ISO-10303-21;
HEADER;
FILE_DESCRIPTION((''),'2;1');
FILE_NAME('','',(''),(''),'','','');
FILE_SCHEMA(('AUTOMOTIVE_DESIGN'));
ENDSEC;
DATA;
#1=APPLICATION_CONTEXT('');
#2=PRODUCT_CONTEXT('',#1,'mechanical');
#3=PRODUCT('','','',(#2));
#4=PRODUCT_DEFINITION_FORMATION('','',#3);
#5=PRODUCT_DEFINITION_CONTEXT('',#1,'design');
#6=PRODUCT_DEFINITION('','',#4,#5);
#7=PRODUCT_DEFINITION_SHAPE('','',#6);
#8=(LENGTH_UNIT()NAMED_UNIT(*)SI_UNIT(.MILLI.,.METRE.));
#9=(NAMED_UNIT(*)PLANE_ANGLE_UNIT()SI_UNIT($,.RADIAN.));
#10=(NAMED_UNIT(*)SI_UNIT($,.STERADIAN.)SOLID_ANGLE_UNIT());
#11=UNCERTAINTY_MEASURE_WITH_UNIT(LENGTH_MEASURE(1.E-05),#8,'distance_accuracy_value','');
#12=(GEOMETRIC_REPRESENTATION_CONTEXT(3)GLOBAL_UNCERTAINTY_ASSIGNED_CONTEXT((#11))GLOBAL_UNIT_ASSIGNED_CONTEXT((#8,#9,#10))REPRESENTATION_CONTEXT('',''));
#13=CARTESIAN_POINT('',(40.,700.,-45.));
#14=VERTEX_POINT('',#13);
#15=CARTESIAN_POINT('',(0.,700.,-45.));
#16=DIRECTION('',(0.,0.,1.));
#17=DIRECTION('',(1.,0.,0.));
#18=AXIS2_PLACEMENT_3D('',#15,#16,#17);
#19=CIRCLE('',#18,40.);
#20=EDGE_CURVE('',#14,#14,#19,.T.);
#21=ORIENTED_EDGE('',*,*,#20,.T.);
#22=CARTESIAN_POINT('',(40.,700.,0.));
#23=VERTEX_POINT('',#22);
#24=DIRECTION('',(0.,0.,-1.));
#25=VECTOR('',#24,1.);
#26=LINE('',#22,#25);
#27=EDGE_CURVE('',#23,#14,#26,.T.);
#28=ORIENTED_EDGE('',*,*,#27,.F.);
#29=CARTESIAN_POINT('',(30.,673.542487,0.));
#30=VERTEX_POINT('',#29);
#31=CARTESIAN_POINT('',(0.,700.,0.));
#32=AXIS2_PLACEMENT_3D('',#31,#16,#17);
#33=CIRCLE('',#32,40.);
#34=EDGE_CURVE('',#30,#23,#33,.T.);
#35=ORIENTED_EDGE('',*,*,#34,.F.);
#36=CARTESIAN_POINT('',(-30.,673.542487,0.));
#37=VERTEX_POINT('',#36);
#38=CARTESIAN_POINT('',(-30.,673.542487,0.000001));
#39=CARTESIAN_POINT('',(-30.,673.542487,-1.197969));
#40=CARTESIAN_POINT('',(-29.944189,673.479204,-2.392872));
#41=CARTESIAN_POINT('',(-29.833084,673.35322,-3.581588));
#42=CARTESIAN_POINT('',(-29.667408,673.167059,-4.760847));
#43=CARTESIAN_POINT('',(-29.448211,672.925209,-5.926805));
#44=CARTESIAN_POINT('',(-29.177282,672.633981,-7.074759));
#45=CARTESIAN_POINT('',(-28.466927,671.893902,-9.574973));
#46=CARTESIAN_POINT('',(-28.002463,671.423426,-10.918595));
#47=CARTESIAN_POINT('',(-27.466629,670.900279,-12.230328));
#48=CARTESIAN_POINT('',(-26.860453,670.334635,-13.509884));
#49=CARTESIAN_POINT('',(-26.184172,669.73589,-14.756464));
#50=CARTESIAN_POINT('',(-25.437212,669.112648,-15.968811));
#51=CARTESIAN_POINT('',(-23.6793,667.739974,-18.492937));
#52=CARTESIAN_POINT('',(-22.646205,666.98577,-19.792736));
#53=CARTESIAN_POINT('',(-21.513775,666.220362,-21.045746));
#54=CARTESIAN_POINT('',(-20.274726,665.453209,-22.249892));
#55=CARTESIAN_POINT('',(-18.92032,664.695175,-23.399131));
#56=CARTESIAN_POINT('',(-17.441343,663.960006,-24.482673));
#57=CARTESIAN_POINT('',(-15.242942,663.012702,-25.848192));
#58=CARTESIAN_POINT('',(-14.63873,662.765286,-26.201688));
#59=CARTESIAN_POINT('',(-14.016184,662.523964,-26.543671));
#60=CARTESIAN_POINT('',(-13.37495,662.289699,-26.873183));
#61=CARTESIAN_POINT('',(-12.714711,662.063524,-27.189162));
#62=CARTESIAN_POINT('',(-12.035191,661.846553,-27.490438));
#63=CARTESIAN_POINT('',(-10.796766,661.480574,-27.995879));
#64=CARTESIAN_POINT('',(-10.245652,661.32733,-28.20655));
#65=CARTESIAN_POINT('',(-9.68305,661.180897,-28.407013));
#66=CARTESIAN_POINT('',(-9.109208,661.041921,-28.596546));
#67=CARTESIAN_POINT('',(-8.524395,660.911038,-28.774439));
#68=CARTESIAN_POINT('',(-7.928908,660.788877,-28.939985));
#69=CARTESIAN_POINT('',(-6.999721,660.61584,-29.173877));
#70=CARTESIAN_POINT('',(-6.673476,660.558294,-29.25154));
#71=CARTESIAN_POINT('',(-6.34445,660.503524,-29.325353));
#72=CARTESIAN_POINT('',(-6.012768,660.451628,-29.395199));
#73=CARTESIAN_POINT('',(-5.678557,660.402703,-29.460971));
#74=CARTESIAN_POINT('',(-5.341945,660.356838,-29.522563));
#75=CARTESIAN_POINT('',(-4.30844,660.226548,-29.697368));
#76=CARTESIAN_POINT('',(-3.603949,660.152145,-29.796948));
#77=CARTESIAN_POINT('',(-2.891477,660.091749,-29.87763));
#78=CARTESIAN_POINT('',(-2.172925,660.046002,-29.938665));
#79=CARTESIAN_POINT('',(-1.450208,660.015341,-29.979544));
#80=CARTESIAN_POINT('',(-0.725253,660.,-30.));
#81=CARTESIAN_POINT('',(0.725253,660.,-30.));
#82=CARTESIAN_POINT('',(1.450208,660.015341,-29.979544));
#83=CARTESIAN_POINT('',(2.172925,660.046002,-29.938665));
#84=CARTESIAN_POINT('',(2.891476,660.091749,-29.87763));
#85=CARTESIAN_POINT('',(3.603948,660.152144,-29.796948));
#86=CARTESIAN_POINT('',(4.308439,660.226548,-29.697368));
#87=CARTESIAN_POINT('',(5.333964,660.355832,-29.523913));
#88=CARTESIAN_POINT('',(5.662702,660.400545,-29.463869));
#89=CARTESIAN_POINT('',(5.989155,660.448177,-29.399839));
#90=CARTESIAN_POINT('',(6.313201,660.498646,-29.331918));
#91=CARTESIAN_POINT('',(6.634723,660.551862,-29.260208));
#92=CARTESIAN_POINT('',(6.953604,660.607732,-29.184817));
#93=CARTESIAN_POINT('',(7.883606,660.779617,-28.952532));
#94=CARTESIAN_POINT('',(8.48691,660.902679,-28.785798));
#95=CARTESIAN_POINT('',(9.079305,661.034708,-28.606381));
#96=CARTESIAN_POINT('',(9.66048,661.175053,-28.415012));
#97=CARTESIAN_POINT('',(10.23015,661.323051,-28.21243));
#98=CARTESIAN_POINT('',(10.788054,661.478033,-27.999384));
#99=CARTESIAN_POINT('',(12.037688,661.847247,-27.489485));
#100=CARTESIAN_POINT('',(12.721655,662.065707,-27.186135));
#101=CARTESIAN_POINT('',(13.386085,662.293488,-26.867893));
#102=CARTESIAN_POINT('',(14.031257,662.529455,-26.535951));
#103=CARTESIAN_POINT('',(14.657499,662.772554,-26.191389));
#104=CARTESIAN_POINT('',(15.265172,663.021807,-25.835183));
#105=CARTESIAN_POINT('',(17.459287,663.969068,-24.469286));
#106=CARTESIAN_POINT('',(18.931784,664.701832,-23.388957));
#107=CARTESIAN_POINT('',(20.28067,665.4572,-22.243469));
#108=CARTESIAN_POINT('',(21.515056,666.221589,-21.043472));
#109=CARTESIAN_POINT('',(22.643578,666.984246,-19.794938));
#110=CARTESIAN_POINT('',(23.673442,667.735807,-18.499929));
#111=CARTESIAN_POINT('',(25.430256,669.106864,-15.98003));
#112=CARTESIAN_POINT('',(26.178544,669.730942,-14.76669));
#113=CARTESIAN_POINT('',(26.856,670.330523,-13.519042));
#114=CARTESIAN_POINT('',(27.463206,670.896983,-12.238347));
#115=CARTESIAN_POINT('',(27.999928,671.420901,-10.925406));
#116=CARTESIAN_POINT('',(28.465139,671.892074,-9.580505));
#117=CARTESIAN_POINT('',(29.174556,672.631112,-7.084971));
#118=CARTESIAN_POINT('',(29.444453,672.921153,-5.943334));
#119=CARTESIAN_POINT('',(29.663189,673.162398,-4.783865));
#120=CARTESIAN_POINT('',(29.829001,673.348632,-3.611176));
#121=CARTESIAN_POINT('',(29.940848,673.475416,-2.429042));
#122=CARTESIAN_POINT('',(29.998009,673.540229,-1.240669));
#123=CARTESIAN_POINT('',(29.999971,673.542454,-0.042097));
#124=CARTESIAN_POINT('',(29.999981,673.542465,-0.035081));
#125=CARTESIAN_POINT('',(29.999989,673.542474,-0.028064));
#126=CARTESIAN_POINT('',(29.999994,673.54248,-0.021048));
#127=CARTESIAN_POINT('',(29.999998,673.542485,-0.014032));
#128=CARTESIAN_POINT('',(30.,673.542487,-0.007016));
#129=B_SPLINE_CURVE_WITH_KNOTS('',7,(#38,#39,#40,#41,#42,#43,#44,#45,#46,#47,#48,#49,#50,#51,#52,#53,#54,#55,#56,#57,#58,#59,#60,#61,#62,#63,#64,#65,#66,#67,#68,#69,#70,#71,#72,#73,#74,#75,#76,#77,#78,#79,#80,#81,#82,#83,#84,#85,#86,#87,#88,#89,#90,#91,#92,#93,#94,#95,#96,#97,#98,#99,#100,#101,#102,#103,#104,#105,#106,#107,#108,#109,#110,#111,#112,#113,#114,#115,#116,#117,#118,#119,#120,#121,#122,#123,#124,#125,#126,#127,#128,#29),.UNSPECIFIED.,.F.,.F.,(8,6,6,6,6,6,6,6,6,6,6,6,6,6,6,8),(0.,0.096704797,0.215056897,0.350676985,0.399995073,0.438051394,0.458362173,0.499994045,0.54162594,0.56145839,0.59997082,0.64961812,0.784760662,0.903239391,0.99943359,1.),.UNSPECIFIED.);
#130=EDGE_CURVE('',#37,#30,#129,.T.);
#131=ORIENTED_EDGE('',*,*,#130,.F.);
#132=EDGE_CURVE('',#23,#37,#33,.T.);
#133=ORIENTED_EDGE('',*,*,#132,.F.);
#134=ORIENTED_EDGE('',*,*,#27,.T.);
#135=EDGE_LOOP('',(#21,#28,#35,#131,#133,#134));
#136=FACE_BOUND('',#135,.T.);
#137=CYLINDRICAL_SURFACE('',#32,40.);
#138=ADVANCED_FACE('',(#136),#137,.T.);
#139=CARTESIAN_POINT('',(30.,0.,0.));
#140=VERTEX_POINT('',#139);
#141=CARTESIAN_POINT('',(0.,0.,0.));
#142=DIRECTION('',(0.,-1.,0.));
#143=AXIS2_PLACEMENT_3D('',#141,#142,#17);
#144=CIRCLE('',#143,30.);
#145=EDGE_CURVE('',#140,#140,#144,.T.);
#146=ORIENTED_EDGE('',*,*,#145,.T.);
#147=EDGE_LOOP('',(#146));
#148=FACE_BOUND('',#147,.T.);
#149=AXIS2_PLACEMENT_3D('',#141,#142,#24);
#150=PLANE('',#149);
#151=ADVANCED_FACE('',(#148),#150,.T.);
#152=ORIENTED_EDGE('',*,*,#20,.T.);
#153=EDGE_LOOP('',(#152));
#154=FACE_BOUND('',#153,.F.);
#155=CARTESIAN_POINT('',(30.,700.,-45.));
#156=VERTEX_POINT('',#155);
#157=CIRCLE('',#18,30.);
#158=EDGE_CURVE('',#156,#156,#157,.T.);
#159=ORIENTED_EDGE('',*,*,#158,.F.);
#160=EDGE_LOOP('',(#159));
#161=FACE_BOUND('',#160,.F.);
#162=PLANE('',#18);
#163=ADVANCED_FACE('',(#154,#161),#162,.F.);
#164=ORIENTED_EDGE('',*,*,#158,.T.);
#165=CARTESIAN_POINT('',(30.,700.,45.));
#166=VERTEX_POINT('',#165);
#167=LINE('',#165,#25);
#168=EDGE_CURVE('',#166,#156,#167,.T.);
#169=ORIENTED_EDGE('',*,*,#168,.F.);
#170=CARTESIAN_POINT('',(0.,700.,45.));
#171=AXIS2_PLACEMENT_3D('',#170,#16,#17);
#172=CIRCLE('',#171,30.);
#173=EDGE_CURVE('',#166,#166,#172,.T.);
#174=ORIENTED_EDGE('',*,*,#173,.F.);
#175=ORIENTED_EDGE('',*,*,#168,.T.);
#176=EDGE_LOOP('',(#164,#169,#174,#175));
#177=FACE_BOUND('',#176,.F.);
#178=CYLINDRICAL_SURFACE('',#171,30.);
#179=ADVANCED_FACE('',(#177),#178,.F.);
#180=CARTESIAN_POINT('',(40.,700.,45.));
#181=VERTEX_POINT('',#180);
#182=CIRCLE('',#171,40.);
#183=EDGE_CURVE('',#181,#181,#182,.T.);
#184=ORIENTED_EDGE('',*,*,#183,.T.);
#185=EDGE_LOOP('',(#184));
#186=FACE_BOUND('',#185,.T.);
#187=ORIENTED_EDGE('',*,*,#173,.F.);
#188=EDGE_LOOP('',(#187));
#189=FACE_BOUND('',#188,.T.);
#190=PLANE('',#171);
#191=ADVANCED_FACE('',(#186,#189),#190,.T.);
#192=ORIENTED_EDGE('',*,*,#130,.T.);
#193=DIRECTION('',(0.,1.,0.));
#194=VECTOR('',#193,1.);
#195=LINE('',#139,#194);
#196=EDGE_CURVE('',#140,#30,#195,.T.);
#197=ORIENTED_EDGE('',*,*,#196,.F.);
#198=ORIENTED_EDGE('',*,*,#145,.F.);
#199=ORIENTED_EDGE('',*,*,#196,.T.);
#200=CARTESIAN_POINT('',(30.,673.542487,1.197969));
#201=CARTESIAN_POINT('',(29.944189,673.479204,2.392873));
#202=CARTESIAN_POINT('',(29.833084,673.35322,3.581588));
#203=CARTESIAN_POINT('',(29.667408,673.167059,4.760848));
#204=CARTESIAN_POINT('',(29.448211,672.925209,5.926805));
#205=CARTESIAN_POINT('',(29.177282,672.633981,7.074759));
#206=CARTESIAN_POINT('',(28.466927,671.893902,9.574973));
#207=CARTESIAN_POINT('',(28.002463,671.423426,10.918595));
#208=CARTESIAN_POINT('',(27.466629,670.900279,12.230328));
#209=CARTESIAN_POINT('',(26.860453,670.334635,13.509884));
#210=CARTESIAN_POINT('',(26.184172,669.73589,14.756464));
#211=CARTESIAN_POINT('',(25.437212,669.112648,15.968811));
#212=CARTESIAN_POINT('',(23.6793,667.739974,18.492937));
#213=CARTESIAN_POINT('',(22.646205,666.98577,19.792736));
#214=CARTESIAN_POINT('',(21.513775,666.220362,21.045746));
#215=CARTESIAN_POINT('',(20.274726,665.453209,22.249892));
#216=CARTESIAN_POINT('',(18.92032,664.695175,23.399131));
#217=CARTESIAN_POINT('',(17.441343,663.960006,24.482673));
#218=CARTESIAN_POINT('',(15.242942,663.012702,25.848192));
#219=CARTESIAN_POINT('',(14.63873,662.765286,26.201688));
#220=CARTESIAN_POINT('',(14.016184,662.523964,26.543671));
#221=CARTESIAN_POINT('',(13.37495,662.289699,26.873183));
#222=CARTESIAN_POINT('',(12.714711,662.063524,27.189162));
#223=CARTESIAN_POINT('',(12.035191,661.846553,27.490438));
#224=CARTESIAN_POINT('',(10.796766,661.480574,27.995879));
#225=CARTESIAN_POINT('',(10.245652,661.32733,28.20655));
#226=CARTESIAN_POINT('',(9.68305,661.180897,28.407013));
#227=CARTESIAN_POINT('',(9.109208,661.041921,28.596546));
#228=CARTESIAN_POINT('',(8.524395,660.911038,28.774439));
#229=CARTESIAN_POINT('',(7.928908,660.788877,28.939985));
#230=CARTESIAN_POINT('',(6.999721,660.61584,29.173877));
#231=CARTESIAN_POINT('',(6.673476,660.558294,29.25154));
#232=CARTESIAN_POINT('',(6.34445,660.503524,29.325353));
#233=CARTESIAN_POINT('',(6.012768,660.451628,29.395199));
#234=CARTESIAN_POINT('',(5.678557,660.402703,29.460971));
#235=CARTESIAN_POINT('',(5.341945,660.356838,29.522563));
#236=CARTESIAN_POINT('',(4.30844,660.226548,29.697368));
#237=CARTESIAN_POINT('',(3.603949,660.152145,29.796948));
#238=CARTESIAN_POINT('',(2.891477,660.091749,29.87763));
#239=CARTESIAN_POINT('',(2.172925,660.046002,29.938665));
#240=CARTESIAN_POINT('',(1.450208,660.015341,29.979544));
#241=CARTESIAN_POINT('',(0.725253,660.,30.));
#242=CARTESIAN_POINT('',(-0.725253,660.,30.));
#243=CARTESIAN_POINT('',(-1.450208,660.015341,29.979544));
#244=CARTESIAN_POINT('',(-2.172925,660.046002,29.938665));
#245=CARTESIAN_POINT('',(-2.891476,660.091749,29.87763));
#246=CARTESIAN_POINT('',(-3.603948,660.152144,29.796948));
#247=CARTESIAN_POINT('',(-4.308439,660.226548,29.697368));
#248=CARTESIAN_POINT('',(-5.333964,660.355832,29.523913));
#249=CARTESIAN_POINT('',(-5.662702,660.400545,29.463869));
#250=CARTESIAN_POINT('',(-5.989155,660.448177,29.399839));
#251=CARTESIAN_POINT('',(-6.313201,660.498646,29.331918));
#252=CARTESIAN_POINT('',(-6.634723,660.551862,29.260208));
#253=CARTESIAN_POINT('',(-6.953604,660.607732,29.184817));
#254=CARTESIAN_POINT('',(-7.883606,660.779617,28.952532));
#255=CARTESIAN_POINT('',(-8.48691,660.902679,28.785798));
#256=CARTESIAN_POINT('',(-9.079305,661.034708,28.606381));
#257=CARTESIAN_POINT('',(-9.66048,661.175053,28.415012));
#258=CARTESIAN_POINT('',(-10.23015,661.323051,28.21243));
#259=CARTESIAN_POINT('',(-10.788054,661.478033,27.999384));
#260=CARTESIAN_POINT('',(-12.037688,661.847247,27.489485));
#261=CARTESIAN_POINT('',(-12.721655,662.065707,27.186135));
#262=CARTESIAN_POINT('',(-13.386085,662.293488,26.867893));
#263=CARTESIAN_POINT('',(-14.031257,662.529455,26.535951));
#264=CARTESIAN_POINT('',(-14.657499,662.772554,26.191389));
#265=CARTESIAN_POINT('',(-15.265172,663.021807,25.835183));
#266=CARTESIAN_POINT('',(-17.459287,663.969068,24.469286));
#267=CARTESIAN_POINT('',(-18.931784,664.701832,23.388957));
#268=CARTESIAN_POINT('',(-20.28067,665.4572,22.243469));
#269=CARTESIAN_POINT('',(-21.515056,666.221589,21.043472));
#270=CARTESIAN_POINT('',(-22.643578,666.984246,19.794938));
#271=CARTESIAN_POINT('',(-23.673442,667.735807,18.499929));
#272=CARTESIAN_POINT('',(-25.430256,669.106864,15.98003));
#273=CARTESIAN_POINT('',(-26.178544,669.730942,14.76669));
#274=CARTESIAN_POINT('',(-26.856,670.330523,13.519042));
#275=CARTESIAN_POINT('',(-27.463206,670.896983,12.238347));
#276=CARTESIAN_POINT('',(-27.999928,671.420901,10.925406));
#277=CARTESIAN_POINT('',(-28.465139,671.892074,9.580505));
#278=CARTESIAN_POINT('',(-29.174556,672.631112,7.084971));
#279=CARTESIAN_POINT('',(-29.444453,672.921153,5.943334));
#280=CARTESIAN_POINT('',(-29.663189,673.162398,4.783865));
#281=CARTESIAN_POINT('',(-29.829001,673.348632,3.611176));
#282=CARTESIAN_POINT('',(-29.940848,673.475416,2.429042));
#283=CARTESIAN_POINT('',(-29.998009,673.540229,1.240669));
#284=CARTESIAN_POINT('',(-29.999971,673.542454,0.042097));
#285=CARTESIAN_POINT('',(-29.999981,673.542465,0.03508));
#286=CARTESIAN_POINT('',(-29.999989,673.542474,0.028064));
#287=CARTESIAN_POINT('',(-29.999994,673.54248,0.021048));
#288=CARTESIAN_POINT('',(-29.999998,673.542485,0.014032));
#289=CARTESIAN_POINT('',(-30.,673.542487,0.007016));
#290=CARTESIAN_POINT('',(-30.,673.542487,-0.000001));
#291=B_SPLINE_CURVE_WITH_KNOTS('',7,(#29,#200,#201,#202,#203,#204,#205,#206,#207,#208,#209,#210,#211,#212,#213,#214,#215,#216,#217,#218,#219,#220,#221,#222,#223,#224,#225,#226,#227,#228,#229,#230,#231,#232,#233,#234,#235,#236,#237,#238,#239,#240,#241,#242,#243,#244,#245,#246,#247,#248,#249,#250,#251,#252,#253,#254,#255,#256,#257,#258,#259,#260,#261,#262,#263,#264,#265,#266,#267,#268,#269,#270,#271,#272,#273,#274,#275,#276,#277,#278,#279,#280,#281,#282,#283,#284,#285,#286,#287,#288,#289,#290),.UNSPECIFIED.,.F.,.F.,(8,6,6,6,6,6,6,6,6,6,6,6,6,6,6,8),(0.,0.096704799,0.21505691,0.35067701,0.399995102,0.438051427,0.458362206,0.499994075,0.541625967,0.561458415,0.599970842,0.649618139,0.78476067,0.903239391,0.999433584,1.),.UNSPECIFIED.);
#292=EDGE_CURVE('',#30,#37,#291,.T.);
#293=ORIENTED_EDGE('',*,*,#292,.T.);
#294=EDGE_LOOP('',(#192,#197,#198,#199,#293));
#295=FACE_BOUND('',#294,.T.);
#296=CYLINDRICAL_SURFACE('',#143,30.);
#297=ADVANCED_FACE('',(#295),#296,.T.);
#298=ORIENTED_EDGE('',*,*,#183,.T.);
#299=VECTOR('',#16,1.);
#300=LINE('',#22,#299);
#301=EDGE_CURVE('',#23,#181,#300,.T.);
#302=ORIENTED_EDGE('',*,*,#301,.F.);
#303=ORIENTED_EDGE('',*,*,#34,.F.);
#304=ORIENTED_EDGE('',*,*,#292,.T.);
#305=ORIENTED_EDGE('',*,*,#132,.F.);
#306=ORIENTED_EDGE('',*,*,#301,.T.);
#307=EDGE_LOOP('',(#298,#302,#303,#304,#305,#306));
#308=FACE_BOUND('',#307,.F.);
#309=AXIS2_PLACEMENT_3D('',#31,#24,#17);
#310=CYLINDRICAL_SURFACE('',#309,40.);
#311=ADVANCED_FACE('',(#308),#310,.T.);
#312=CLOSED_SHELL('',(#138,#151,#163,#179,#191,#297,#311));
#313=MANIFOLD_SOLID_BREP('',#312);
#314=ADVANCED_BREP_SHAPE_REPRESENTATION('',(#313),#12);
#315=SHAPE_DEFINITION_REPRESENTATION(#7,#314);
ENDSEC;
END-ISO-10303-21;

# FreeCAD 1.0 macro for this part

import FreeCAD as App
import Part
import Sketcher
Q = App.Units.Quantity

doc = App.newDocument("Part")
body = doc.addObject("PartDesign::Body", "Body")

sketch1 = doc.addObject("Sketcher::SketchObject", "Sketch")
body.addObject(sketch1)
sketch1.AttachmentSupport = (doc.XZ_Plane, [""])
sketch1.MapMode = "FlatFace"
sketch1.addGeometry(Part.Circle(App.Vector(0, 0, 0), App.Vector(0, 0, 1), 30), False)
sketch1.addConstraint([
    Sketcher.Constraint("Coincident", 0, 3, -1, 1),
    Sketcher.Constraint("Diameter", 0, Q("60 mm")),
])
pad1 = doc.addObject("PartDesign::Pad", "Pad")
body.addObject(pad1)
pad1.Profile = sketch1
pad1.Length = 700
pad1.Reversed = True

sketch2 = doc.addObject("Sketcher::SketchObject", "Sketch001")
body.addObject(sketch2)
sketch2.AttachmentSupport = (doc.XY_Plane, [""])
sketch2.MapMode = "FlatFace"
sketch2.addGeometry(Part.Circle(App.Vector(0, 700, 0), App.Vector(0, 0, 1), 40), False)
sketch2.addConstraint([
    Sketcher.Constraint("PointOnObject", 0, 3, -2),
    Sketcher.Constraint("Diameter", 0, Q("80 mm")),
    Sketcher.Constraint("DistanceY", -1, 1, 0, 3, Q("700 mm")),
])
pad2 = doc.addObject("PartDesign::Pad", "Pad001")
body.addObject(pad2)
pad2.Profile = sketch2
pad2.Length = 90
pad2.Midplane = True

sketch3 = doc.addObject("Sketcher::SketchObject", "Sketch002")
body.addObject(sketch3)
sketch3.AttachmentSupport = (doc.XY_Plane, [""])
sketch3.MapMode = "FlatFace"
sketch3.AttachmentOffset = App.Placement(App.Vector(0, 0, 45), App.Rotation())
sketch3.addGeometry(Part.Circle(App.Vector(0, 700, 0), App.Vector(0, 0, 1), 30), False)
sketch3.addConstraint([
    Sketcher.Constraint("PointOnObject", 0, 3, -2),
    Sketcher.Constraint("Diameter", 0, Q("60 mm")),
    Sketcher.Constraint("DistanceY", -1, 1, 0, 3, Q("700 mm")),
])
pocket1 = doc.addObject("PartDesign::Pocket", "Pocket")
body.addObject(pocket1)
pocket1.Profile = sketch3
pocket1.Type = "ThroughAll"

doc.recompute()
